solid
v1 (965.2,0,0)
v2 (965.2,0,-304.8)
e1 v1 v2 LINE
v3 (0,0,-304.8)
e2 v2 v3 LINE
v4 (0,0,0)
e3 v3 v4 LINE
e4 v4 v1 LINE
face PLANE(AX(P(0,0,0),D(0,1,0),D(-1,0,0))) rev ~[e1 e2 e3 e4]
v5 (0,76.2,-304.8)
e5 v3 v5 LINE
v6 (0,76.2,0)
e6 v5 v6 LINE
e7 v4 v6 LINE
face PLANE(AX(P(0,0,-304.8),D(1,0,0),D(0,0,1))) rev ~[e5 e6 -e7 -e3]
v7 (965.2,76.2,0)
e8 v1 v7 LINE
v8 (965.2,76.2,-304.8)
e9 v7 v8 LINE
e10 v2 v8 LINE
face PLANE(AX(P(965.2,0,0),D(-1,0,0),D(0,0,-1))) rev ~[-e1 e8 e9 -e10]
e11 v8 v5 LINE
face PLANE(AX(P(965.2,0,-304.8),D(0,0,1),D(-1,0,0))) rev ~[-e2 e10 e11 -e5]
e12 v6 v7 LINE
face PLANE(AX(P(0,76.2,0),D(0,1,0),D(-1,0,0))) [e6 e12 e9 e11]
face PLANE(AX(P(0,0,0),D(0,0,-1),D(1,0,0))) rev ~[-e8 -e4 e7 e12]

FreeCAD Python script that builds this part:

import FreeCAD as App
import Part
import Sketcher
Q = App.Units.Quantity


def add_polygon(sketch, points):
    """Adds a closed chain of lines whose ends are joined by coincident constraints."""
    first, n = sketch.GeometryCount, len(points)
    for a, b in zip(points, points[1:] + points[:1]):
        sketch.addGeometry(Part.LineSegment(App.Vector(*a, 0), App.Vector(*b, 0)), False)
    for i in range(n):
        sketch.addConstraint(Sketcher.Constraint("Coincident", first + i, 2, first + (i + 1) % n, 1))

doc = App.newDocument("Part")
body = doc.addObject("PartDesign::Body", "Body")

sketch1 = body.newObject("Sketcher::SketchObject", "Sketch")
sketch1.AttachmentSupport = (doc.getObject("XZ_Plane"), [""])
sketch1.MapMode = "FlatFace"
add_polygon(sketch1, [(0, -304.8), (0, 0), (965.2, 0), (965.2, -304.8)])
sketch1.addConstraint([
    Sketcher.Constraint("Vertical", 0),
    Sketcher.Constraint("Horizontal", 1),
    Sketcher.Constraint("Vertical", 2),
    Sketcher.Constraint("Horizontal", 3),
    Sketcher.Constraint("Coincident", 0, 2, -1, 1),
    Sketcher.Constraint("DistanceX", 1, 1, 1, 2, Q("38 in")),
    Sketcher.Constraint("DistanceY", 0, 1, 0, 2, Q("12 in")),
])
pad1 = body.newObject("PartDesign::Pad", "Pad")
pad1.Profile = sketch1
pad1.Length = Q("3 in")
pad1.Reversed = True

doc.recompute()
